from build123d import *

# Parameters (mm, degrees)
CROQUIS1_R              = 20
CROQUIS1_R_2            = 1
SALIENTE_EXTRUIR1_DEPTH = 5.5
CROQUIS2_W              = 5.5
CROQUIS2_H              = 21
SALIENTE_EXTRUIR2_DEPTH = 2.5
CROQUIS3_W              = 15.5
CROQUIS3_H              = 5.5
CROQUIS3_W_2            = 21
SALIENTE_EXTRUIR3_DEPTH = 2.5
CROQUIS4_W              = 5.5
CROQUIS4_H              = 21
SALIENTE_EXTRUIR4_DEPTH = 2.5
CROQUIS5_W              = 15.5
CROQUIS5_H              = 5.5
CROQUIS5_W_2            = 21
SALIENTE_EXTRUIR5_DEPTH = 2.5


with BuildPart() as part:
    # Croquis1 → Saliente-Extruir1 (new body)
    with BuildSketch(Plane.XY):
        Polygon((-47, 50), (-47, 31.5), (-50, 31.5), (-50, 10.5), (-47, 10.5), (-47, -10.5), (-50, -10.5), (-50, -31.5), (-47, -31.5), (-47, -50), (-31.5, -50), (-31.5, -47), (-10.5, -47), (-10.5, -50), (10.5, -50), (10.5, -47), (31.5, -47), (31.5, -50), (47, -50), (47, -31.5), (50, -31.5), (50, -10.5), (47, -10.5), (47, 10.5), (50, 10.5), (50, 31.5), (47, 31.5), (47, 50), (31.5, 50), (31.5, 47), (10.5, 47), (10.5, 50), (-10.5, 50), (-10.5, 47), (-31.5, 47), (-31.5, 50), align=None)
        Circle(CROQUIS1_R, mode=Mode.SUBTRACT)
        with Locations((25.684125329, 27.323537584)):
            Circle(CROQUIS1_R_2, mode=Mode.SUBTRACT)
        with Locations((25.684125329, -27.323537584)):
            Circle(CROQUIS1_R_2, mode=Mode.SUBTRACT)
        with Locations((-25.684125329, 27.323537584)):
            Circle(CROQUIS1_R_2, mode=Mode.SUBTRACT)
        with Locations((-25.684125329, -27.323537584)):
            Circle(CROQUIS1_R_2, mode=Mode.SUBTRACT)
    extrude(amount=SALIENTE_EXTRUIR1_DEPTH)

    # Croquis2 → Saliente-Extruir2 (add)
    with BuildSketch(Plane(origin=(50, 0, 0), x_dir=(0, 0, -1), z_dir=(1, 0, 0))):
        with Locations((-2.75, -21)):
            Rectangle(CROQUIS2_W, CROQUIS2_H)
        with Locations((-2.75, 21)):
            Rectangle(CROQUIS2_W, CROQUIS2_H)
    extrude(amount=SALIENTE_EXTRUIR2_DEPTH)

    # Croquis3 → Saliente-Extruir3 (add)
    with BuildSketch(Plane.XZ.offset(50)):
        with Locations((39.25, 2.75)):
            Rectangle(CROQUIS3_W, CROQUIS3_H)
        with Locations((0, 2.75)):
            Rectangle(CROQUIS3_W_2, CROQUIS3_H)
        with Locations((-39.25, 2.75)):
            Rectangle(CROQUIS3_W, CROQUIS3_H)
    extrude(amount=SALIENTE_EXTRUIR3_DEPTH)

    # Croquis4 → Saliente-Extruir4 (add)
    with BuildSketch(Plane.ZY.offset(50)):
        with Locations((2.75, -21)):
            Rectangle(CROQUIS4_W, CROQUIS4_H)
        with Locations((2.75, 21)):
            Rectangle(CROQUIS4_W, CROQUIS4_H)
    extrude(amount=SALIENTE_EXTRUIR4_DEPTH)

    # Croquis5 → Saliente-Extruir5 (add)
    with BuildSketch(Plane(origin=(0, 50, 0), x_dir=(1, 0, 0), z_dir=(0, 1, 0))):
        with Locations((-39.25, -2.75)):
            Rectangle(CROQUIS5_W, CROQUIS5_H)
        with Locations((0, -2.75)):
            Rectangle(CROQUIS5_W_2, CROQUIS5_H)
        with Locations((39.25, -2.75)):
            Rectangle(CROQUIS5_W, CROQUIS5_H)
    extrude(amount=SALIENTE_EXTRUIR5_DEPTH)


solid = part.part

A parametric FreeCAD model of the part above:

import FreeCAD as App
import Part
import Sketcher
from FreeCAD import Vector

doc = App.newDocument("Part")
body = doc.addObject("PartDesign::Body", "Body")

sketch1 = doc.addObject("Sketcher::SketchObject", "Sketch")
body.addObject(sketch1)
sketch1.AttachmentSupport = (doc.XY_Plane, [""])
sketch1.MapMode = "FlatFace"
sketch1.addGeometry(Part.LineSegment(Vector(-47, 50, 0), Vector(-47, 31.5, 0)), False)
sketch1.addGeometry(Part.LineSegment(Vector(-47, 31.5, 0), Vector(-50, 31.5, 0)), False)
sketch1.addGeometry(Part.LineSegment(Vector(-50, 31.5, 0), Vector(-50, 10.5, 0)), False)
sketch1.addGeometry(Part.LineSegment(Vector(-50, 10.5, 0), Vector(-47, 10.5, 0)), False)
sketch1.addGeometry(Part.LineSegment(Vector(-47, 10.5, 0), Vector(-47, -10.5, 0)), False)
sketch1.addGeometry(Part.LineSegment(Vector(-47, -10.5, 0), Vector(-50, -10.5, 0)), False)
sketch1.addGeometry(Part.LineSegment(Vector(-50, -10.5, 0), Vector(-50, -31.5, 0)), False)
sketch1.addGeometry(Part.LineSegment(Vector(-50, -31.5, 0), Vector(-47, -31.5, 0)), False)
sketch1.addGeometry(Part.LineSegment(Vector(-47, -31.5, 0), Vector(-47, -50, 0)), False)
sketch1.addGeometry(Part.LineSegment(Vector(-47, -50, 0), Vector(-31.5, -50, 0)), False)
sketch1.addGeometry(Part.LineSegment(Vector(-31.5, -50, 0), Vector(-31.5, -47, 0)), False)
sketch1.addGeometry(Part.LineSegment(Vector(-31.5, -47, 0), Vector(-10.5, -47, 0)), False)
sketch1.addGeometry(Part.LineSegment(Vector(-10.5, -47, 0), Vector(-10.5, -50, 0)), False)
sketch1.addGeometry(Part.LineSegment(Vector(-10.5, -50, 0), Vector(10.5, -50, 0)), False)
sketch1.addGeometry(Part.LineSegment(Vector(10.5, -50, 0), Vector(10.5, -47, 0)), False)
sketch1.addGeometry(Part.LineSegment(Vector(10.5, -47, 0), Vector(31.5, -47, 0)), False)
sketch1.addGeometry(Part.LineSegment(Vector(31.5, -47, 0), Vector(31.5, -50, 0)), False)
sketch1.addGeometry(Part.LineSegment(Vector(31.5, -50, 0), Vector(47, -50, 0)), False)
sketch1.addGeometry(Part.LineSegment(Vector(47, -50, 0), Vector(47, -31.5, 0)), False)
sketch1.addGeometry(Part.LineSegment(Vector(47, -31.5, 0), Vector(50, -31.5, 0)), False)
sketch1.addGeometry(Part.LineSegment(Vector(50, -31.5, 0), Vector(50, -10.5, 0)), False)
sketch1.addGeometry(Part.LineSegment(Vector(50, -10.5, 0), Vector(47, -10.5, 0)), False)
sketch1.addGeometry(Part.LineSegment(Vector(47, -10.5, 0), Vector(47, 10.5, 0)), False)
sketch1.addGeometry(Part.LineSegment(Vector(47, 10.5, 0), Vector(50, 10.5, 0)), False)
sketch1.addGeometry(Part.LineSegment(Vector(50, 10.5, 0), Vector(50, 31.5, 0)), False)
sketch1.addGeometry(Part.LineSegment(Vector(50, 31.5, 0), Vector(47, 31.5, 0)), False)
sketch1.addGeometry(Part.LineSegment(Vector(47, 31.5, 0), Vector(47, 50, 0)), False)
sketch1.addGeometry(Part.LineSegment(Vector(47, 50, 0), Vector(31.5, 50, 0)), False)
sketch1.addGeometry(Part.LineSegment(Vector(31.5, 50, 0), Vector(31.5, 47, 0)), False)
sketch1.addGeometry(Part.LineSegment(Vector(31.5, 47, 0), Vector(10.5, 47, 0)), False)
sketch1.addGeometry(Part.LineSegment(Vector(10.5, 47, 0), Vector(10.5, 50, 0)), False)
sketch1.addGeometry(Part.LineSegment(Vector(10.5, 50, 0), Vector(-10.5, 50, 0)), False)
sketch1.addGeometry(Part.LineSegment(Vector(-10.5, 50, 0), Vector(-10.5, 47, 0)), False)
sketch1.addGeometry(Part.LineSegment(Vector(-10.5, 47, 0), Vector(-31.5, 47, 0)), False)
sketch1.addGeometry(Part.LineSegment(Vector(-31.5, 47, 0), Vector(-31.5, 50, 0)), False)
sketch1.addGeometry(Part.LineSegment(Vector(-31.5, 50, 0), Vector(-47, 50, 0)), False)
sketch1.addGeometry(Part.Circle(Vector(-25.7, -27.3, 0), Vector(0, 0, 1), 1), False)
sketch1.addGeometry(Part.Circle(Vector(25.7, -27.3, 0), Vector(0, 0, 1), 1), False)
sketch1.addGeometry(Part.Circle(Vector(0, 0, 0), Vector(0, 0, 1), 20), False)
sketch1.addGeometry(Part.Circle(Vector(-25.7, 27.3, 0), Vector(0, 0, 1), 1), False)
sketch1.addGeometry(Part.Circle(Vector(25.7, 27.3, 0), Vector(0, 0, 1), 1), False)
sketch1.addConstraint(Sketcher.Constraint("Coincident", 0, 2, 1, 1))
sketch1.addConstraint(Sketcher.Constraint("Coincident", 1, 2, 2, 1))
sketch1.addConstraint(Sketcher.Constraint("Coincident", 2, 2, 3, 1))
sketch1.addConstraint(Sketcher.Constraint("Coincident", 3, 2, 4, 1))
sketch1.addConstraint(Sketcher.Constraint("Coincident", 4, 2, 5, 1))
sketch1.addConstraint(Sketcher.Constraint("Coincident", 5, 2, 6, 1))
sketch1.addConstraint(Sketcher.Constraint("Coincident", 6, 2, 7, 1))
sketch1.addConstraint(Sketcher.Constraint("Coincident", 7, 2, 8, 1))
sketch1.addConstraint(Sketcher.Constraint("Coincident", 8, 2, 9, 1))
sketch1.addConstraint(Sketcher.Constraint("Coincident", 9, 2, 10, 1))
sketch1.addConstraint(Sketcher.Constraint("Coincident", 10, 2, 11, 1))
sketch1.addConstraint(Sketcher.Constraint("Coincident", 11, 2, 12, 1))
sketch1.addConstraint(Sketcher.Constraint("Coincident", 12, 2, 13, 1))
sketch1.addConstraint(Sketcher.Constraint("Coincident", 13, 2, 14, 1))
sketch1.addConstraint(Sketcher.Constraint("Coincident", 14, 2, 15, 1))
sketch1.addConstraint(Sketcher.Constraint("Coincident", 15, 2, 16, 1))
sketch1.addConstraint(Sketcher.Constraint("Coincident", 16, 2, 17, 1))
sketch1.addConstraint(Sketcher.Constraint("Coincident", 17, 2, 18, 1))
sketch1.addConstraint(Sketcher.Constraint("Coincident", 18, 2, 19, 1))
sketch1.addConstraint(Sketcher.Constraint("Coincident", 19, 2, 20, 1))
sketch1.addConstraint(Sketcher.Constraint("Coincident", 20, 2, 21, 1))
sketch1.addConstraint(Sketcher.Constraint("Coincident", 21, 2, 22, 1))
sketch1.addConstraint(Sketcher.Constraint("Coincident", 22, 2, 23, 1))
sketch1.addConstraint(Sketcher.Constraint("Coincident", 23, 2, 24, 1))
sketch1.addConstraint(Sketcher.Constraint("Coincident", 24, 2, 25, 1))
sketch1.addConstraint(Sketcher.Constraint("Coincident", 25, 2, 26, 1))
sketch1.addConstraint(Sketcher.Constraint("Coincident", 26, 2, 27, 1))
sketch1.addConstraint(Sketcher.Constraint("Coincident", 27, 2, 28, 1))
sketch1.addConstraint(Sketcher.Constraint("Coincident", 28, 2, 29, 1))
sketch1.addConstraint(Sketcher.Constraint("Coincident", 29, 2, 30, 1))
sketch1.addConstraint(Sketcher.Constraint("Coincident", 30, 2, 31, 1))
sketch1.addConstraint(Sketcher.Constraint("Coincident", 31, 2, 32, 1))
sketch1.addConstraint(Sketcher.Constraint("Coincident", 32, 2, 33, 1))
sketch1.addConstraint(Sketcher.Constraint("Coincident", 33, 2, 34, 1))
sketch1.addConstraint(Sketcher.Constraint("Coincident", 34, 2, 35, 1))
sketch1.addConstraint(Sketcher.Constraint("Coincident", 35, 2, 0, 1))
sketch1.addConstraint(Sketcher.Constraint("Vertical", 0))
sketch1.addConstraint(Sketcher.Constraint("Horizontal", 1))
sketch1.addConstraint(Sketcher.Constraint("Vertical", 2))
sketch1.addConstraint(Sketcher.Constraint("Horizontal", 3))
sketch1.addConstraint(Sketcher.Constraint("Vertical", 4))
sketch1.addConstraint(Sketcher.Constraint("Horizontal", 5))
sketch1.addConstraint(Sketcher.Constraint("Vertical", 6))
sketch1.addConstraint(Sketcher.Constraint("Horizontal", 7))
sketch1.addConstraint(Sketcher.Constraint("Vertical", 8))
sketch1.addConstraint(Sketcher.Constraint("Horizontal", 9))
sketch1.addConstraint(Sketcher.Constraint("Vertical", 10))
sketch1.addConstraint(Sketcher.Constraint("Horizontal", 11))
sketch1.addConstraint(Sketcher.Constraint("Vertical", 12))
sketch1.addConstraint(Sketcher.Constraint("Horizontal", 13))
sketch1.addConstraint(Sketcher.Constraint("Vertical", 14))
sketch1.addConstraint(Sketcher.Constraint("Horizontal", 15))
sketch1.addConstraint(Sketcher.Constraint("Vertical", 16))
sketch1.addConstraint(Sketcher.Constraint("Horizontal", 17))
sketch1.addConstraint(Sketcher.Constraint("Vertical", 18))
sketch1.addConstraint(Sketcher.Constraint("Horizontal", 19))
sketch1.addConstraint(Sketcher.Constraint("Vertical", 20))
sketch1.addConstraint(Sketcher.Constraint("Horizontal", 21))
sketch1.addConstraint(Sketcher.Constraint("Vertical", 22))
sketch1.addConstraint(Sketcher.Constraint("Horizontal", 23))
sketch1.addConstraint(Sketcher.Constraint("Vertical", 24))
sketch1.addConstraint(Sketcher.Constraint("Horizontal", 25))
sketch1.addConstraint(Sketcher.Constraint("Vertical", 26))
sketch1.addConstraint(Sketcher.Constraint("Horizontal", 27))
sketch1.addConstraint(Sketcher.Constraint("Vertical", 28))
sketch1.addConstraint(Sketcher.Constraint("Horizontal", 29))
sketch1.addConstraint(Sketcher.Constraint("Vertical", 30))
sketch1.addConstraint(Sketcher.Constraint("Horizontal", 31))
sketch1.addConstraint(Sketcher.Constraint("Vertical", 32))
sketch1.addConstraint(Sketcher.Constraint("Horizontal", 33))
sketch1.addConstraint(Sketcher.Constraint("Vertical", 34))
sketch1.addConstraint(Sketcher.Constraint("Horizontal", 35))
sketch1.addConstraint(Sketcher.Constraint("Coincident", 38, 3, -1, 1))
sketch1.addConstraint(Sketcher.Constraint("Equal", 36, 37))
sketch1.addConstraint(Sketcher.Constraint("Equal", 37, 39))
sketch1.addConstraint(Sketcher.Constraint("Equal", 39, 40))
sketch1.addConstraint(Sketcher.Constraint("Symmetric", 37, 3, 39, 3, -1, 1))
sketch1.addConstraint(Sketcher.Constraint("Symmetric", 36, 3, 40, 3, -1, 1))
sketch1.addConstraint(Sketcher.Constraint("Symmetric", 0, 2, 18, 2, -1, 1))
sketch1.addConstraint(Sketcher.Constraint("Symmetric", 2, 2, 20, 2, -1, 1))
sketch1.addConstraint(Sketcher.Constraint("Symmetric", 4, 2, 22, 2, -1, 1))
sketch1.addConstraint(Sketcher.Constraint("Symmetric", 6, 2, 24, 2, -1, 1))
sketch1.addConstraint(Sketcher.Constraint("Symmetric", 8, 2, 26, 2, -1, 1))
sketch1.addConstraint(Sketcher.Constraint("Symmetric", 10, 2, 28, 2, -1, 1))
sketch1.addConstraint(Sketcher.Constraint("Symmetric", 12, 2, 30, 2, -1, 1))
sketch1.addConstraint(Sketcher.Constraint("Symmetric", 14, 2, 32, 2, -1, 1))
sketch1.addConstraint(Sketcher.Constraint("Symmetric", 16, 2, 34, 2, -1, 1))
sketch1.addConstraint(Sketcher.Constraint("Symmetric", 36, 3, 37, 3, -2))
sketch1.addConstraint(Sketcher.Constraint("Symmetric", 11, 2, 14, 2, -2))
sketch1.addConstraint(Sketcher.Constraint("Symmetric", 9, 2, 16, 2, -2))
sketch1.addConstraint(Sketcher.Constraint("Symmetric", 7, 2, 18, 2, -2))
sketch1.addConstraint(Sketcher.Constraint("Symmetric", 5, 2, 20, 2, -2))
sketch1.addConstraint(Sketcher.Constraint("Horizontal", 9, 2, 12, 2))
sketch1.addConstraint(Sketcher.Constraint("Vertical", 0, 2, 3, 2))
sketch1.addConstraint(Sketcher.Constraint("Equal", 11, 13))
sketch1.addConstraint(Sketcher.Constraint("Equal", 33, 2))
sketch1.addConstraint(Sketcher.Constraint("Equal", 2, 4))
sketch1.addConstraint(Sketcher.Constraint("Equal", 25, 10))
sketch1.addConstraint(Sketcher.Constraint("Diameter", 36, 2.0))
sketch1.addConstraint(Sketcher.Constraint("Diameter", 38, 40.0))
sketch1.addConstraint(Sketcher.Constraint("DistanceX", 1, 2, 1, 1, 3.0))
sketch1.addConstraint(Sketcher.Constraint("DistanceX", 11, 1, 11, 2, 21.0))
sketch1.addConstraint(Sketcher.Constraint("DistanceX", 9, 1, 9, 2, 15.5))
sketch1.addConstraint(Sketcher.Constraint("DistanceY", 0, 2, 0, 1, 18.5))
sketch1.addConstraint(Sketcher.Constraint("DistanceX", 36, 3, 37, 3, 51.368251))
sketch1.addConstraint(Sketcher.Constraint("DistanceY", 36, 3, -1, 1, 27.323538))
pad1 = doc.addObject("PartDesign::Pad", "Pad")
body.addObject(pad1)
pad1.Profile = sketch1
pad1.Length = 5.5

sketch2 = doc.addObject("Sketcher::SketchObject", "Sketch001")
body.addObject(sketch2)
sketch2.AttachmentSupport = (doc.YZ_Plane, [""])
sketch2.MapMode = "FlatFace"
sketch2.AttachmentOffset = App.Placement(Vector(0, 0, 50), App.Rotation())
sketch2.addGeometry(Part.LineSegment(Vector(-10, 6, 0), Vector(-32, 6, 0)), False)
sketch2.addGeometry(Part.LineSegment(Vector(-32, 6, 0), Vector(-32, 0, 0)), False)
sketch2.addGeometry(Part.LineSegment(Vector(-32, 0, 0), Vector(-10, 0, 0)), False)
sketch2.addGeometry(Part.LineSegment(Vector(-10, 0, 0), Vector(-10, 6, 0)), False)
sketch2.addGeometry(Part.LineSegment(Vector(32, 6, 0), Vector(10, 6, 0)), False)
sketch2.addGeometry(Part.LineSegment(Vector(10, 6, 0), Vector(10, 0, 0)), False)
sketch2.addGeometry(Part.LineSegment(Vector(10, 0, 0), Vector(32, 0, 0)), False)
sketch2.addGeometry(Part.LineSegment(Vector(32, 0, 0), Vector(32, 6, 0)), False)
sketch2.addConstraint(Sketcher.Constraint("Coincident", 0, 2, 1, 1))
sketch2.addConstraint(Sketcher.Constraint("Coincident", 1, 2, 2, 1))
sketch2.addConstraint(Sketcher.Constraint("Coincident", 2, 2, 3, 1))
sketch2.addConstraint(Sketcher.Constraint("Coincident", 3, 2, 0, 1))
sketch2.addConstraint(Sketcher.Constraint("Coincident", 4, 2, 5, 1))
sketch2.addConstraint(Sketcher.Constraint("Coincident", 5, 2, 6, 1))
sketch2.addConstraint(Sketcher.Constraint("Coincident", 6, 2, 7, 1))
sketch2.addConstraint(Sketcher.Constraint("Coincident", 7, 2, 4, 1))
sketch2.addConstraint(Sketcher.Constraint("Horizontal", 0))
sketch2.addConstraint(Sketcher.Constraint("Vertical", 1))
sketch2.addConstraint(Sketcher.Constraint("Horizontal", 2))
sketch2.addConstraint(Sketcher.Constraint("Vertical", 3))
sketch2.addConstraint(Sketcher.Constraint("Horizontal", 4))
sketch2.addConstraint(Sketcher.Constraint("Vertical", 5))
sketch2.addConstraint(Sketcher.Constraint("Horizontal", 6))
sketch2.addConstraint(Sketcher.Constraint("Vertical", 7))
sketch2.addConstraint(Sketcher.Constraint("Symmetric", 2, 2, 5, 2, -1, 1))
sketch2.addConstraint(Sketcher.Constraint("Symmetric", 1, 2, 6, 2, -2))
sketch2.addConstraint(Sketcher.Constraint("Horizontal", 3, 2, 4, 2))
sketch2.addConstraint(Sketcher.Constraint("DistanceX", 0, 2, 0, 1, 21.0))
sketch2.addConstraint(Sketcher.Constraint("DistanceY", 1, 2, 1, 1, 5.5))
sketch2.addConstraint(Sketcher.Constraint("DistanceX", 3, 2, 4, 2, 21.0))
pad2 = doc.addObject("PartDesign::Pad", "Pad001")
body.addObject(pad2)
pad2.Profile = sketch2
pad2.Length = 2.5

sketch3 = doc.addObject("Sketcher::SketchObject", "Sketch002")
body.addObject(sketch3)
sketch3.AttachmentSupport = (doc.XZ_Plane, [""])
sketch3.MapMode = "FlatFace"
sketch3.AttachmentOffset = App.Placement(Vector(0, 0, 50), App.Rotation())
sketch3.addGeometry(Part.LineSegment(Vector(32, 6, 0), Vector(32, 0, 0)), False)
sketch3.addGeometry(Part.LineSegment(Vector(32, 0, 0), Vector(47, 0, 0)), False)
sketch3.addGeometry(Part.LineSegment(Vector(47, 0, 0), Vector(47, 6, 0)), False)
sketch3.addGeometry(Part.LineSegment(Vector(47, 6, 0), Vector(32, 6, 0)), False)
sketch3.addGeometry(Part.LineSegment(Vector(-10, 6, 0), Vector(-10, 0, 0)), False)
sketch3.addGeometry(Part.LineSegment(Vector(-10, 0, 0), Vector(10, 0, 0)), False)
sketch3.addGeometry(Part.LineSegment(Vector(10, 0, 0), Vector(10, 6, 0)), False)
sketch3.addGeometry(Part.LineSegment(Vector(10, 6, 0), Vector(-10, 6, 0)), False)
sketch3.addGeometry(Part.LineSegment(Vector(-47, 6, 0), Vector(-47, 0, 0)), False)
sketch3.addGeometry(Part.LineSegment(Vector(-47, 0, 0), Vector(-32, 0, 0)), False)
sketch3.addGeometry(Part.LineSegment(Vector(-32, 0, 0), Vector(-32, 6, 0)), False)
sketch3.addGeometry(Part.LineSegment(Vector(-32, 6, 0), Vector(-47, 6, 0)), False)
sketch3.addConstraint(Sketcher.Constraint("Coincident", 0, 2, 1, 1))
sketch3.addConstraint(Sketcher.Constraint("Coincident", 1, 2, 2, 1))
sketch3.addConstraint(Sketcher.Constraint("Coincident", 2, 2, 3, 1))
sketch3.addConstraint(Sketcher.Constraint("Coincident", 3, 2, 0, 1))
sketch3.addConstraint(Sketcher.Constraint("Coincident", 4, 2, 5, 1))
sketch3.addConstraint(Sketcher.Constraint("Coincident", 5, 2, 6, 1))
sketch3.addConstraint(Sketcher.Constraint("Coincident", 6, 2, 7, 1))
sketch3.addConstraint(Sketcher.Constraint("Coincident", 7, 2, 4, 1))
sketch3.addConstraint(Sketcher.Constraint("Coincident", 8, 2, 9, 1))
sketch3.addConstraint(Sketcher.Constraint("Coincident", 9, 2, 10, 1))
sketch3.addConstraint(Sketcher.Constraint("Coincident", 10, 2, 11, 1))
sketch3.addConstraint(Sketcher.Constraint("Coincident", 11, 2, 8, 1))
sketch3.addConstraint(Sketcher.Constraint("Vertical", 0))
sketch3.addConstraint(Sketcher.Constraint("Horizontal", 1))
sketch3.addConstraint(Sketcher.Constraint("Vertical", 2))
sketch3.addConstraint(Sketcher.Constraint("Horizontal", 3))
sketch3.addConstraint(Sketcher.Constraint("Vertical", 4))
sketch3.addConstraint(Sketcher.Constraint("Horizontal", 5))
sketch3.addConstraint(Sketcher.Constraint("Vertical", 6))
sketch3.addConstraint(Sketcher.Constraint("Horizontal", 7))
sketch3.addConstraint(Sketcher.Constraint("Vertical", 8))
sketch3.addConstraint(Sketcher.Constraint("Horizontal", 9))
sketch3.addConstraint(Sketcher.Constraint("Vertical", 10))
sketch3.addConstraint(Sketcher.Constraint("Horizontal", 11))
sketch3.addConstraint(Sketcher.Constraint("Symmetric", 4, 2, 5, 2, -1, 1))
sketch3.addConstraint(Sketcher.Constraint("Symmetric", 1, 2, 8, 2, -1, 1))
sketch3.addConstraint(Sketcher.Constraint("Symmetric", 0, 2, 9, 2, -2))
sketch3.addConstraint(Sketcher.Constraint("Horizontal", 3, 2, 6, 2))
sketch3.addConstraint(Sketcher.Constraint("Horizontal", 7, 2, 10, 2))
sketch3.addConstraint(Sketcher.Constraint("DistanceX", 5, 1, 5, 2, 21.0))
sketch3.addConstraint(Sketcher.Constraint("DistanceX", 1, 1, 1, 2, 15.5))
sketch3.addConstraint(Sketcher.Constraint("DistanceY", 0, 2, 0, 1, 5.5))
sketch3.addConstraint(Sketcher.Constraint("DistanceX", -1, 1, 1, 2, 47.0))
pad3 = doc.addObject("PartDesign::Pad", "Pad002")
body.addObject(pad3)
pad3.Profile = sketch3
pad3.Length = 2.5

sketch4 = doc.addObject("Sketcher::SketchObject", "Sketch003")
body.addObject(sketch4)
sketch4.AttachmentSupport = (doc.YZ_Plane, [""])
sketch4.MapMode = "FlatFace"
sketch4.AttachmentOffset = App.Placement(Vector(0, 0, -50), App.Rotation())
sketch4.addGeometry(Part.LineSegment(Vector(-10, 0, 0), Vector(-32, 0, 0)), False)
sketch4.addGeometry(Part.LineSegment(Vector(-32, 0, 0), Vector(-32, 6, 0)), False)
sketch4.addGeometry(Part.LineSegment(Vector(-32, 6, 0), Vector(-10, 6, 0)), False)
sketch4.addGeometry(Part.LineSegment(Vector(-10, 6, 0), Vector(-10, 0, 0)), False)
sketch4.addGeometry(Part.LineSegment(Vector(32, 0, 0), Vector(10, 0, 0)), False)
sketch4.addGeometry(Part.LineSegment(Vector(10, 0, 0), Vector(10, 6, 0)), False)
sketch4.addGeometry(Part.LineSegment(Vector(10, 6, 0), Vector(32, 6, 0)), False)
sketch4.addGeometry(Part.LineSegment(Vector(32, 6, 0), Vector(32, 0, 0)), False)
sketch4.addConstraint(Sketcher.Constraint("Coincident", 0, 2, 1, 1))
sketch4.addConstraint(Sketcher.Constraint("Coincident", 1, 2, 2, 1))
sketch4.addConstraint(Sketcher.Constraint("Coincident", 2, 2, 3, 1))
sketch4.addConstraint(Sketcher.Constraint("Coincident", 3, 2, 0, 1))
sketch4.addConstraint(Sketcher.Constraint("Coincident", 4, 2, 5, 1))
sketch4.addConstraint(Sketcher.Constraint("Coincident", 5, 2, 6, 1))
sketch4.addConstraint(Sketcher.Constraint("Coincident", 6, 2, 7, 1))
sketch4.addConstraint(Sketcher.Constraint("Coincident", 7, 2, 4, 1))
sketch4.addConstraint(Sketcher.Constraint("Horizontal", 0))
sketch4.addConstraint(Sketcher.Constraint("Vertical", 1))
sketch4.addConstraint(Sketcher.Constraint("Horizontal", 2))
sketch4.addConstraint(Sketcher.Constraint("Vertical", 3))
sketch4.addConstraint(Sketcher.Constraint("Horizontal", 4))
sketch4.addConstraint(Sketcher.Constraint("Vertical", 5))
sketch4.addConstraint(Sketcher.Constraint("Horizontal", 6))
sketch4.addConstraint(Sketcher.Constraint("Vertical", 7))
sketch4.addConstraint(Sketcher.Constraint("Symmetric", 3, 2, 4, 2, -1, 1))
sketch4.addConstraint(Sketcher.Constraint("Symmetric", 1, 2, 6, 2, -2))
sketch4.addConstraint(Sketcher.Constraint("PointOnObject", 0, 2, -1))
sketch4.addConstraint(Sketcher.Constraint("DistanceX", 0, 2, 0, 1, 21.0))
sketch4.addConstraint(Sketcher.Constraint("DistanceY", 1, 1, 1, 2, 5.5))
sketch4.addConstraint(Sketcher.Constraint("DistanceX", 3, 2, 4, 2, 21.0))
pad4 = doc.addObject("PartDesign::Pad", "Pad003")
body.addObject(pad4)
pad4.Profile = sketch4
pad4.Length = 2.5
pad4.Reversed = True

sketch5 = doc.addObject("Sketcher::SketchObject", "Sketch004")
body.addObject(sketch5)
sketch5.AttachmentSupport = (doc.XZ_Plane, [""])
sketch5.MapMode = "FlatFace"
sketch5.AttachmentOffset = App.Placement(Vector(0, 0, -50), App.Rotation())
sketch5.addGeometry(Part.LineSegment(Vector(-47, 0, 0), Vector(-47, 6, 0)), False)
sketch5.addGeometry(Part.LineSegment(Vector(-47, 6, 0), Vector(-32, 6, 0)), False)
sketch5.addGeometry(Part.LineSegment(Vector(-32, 6, 0), Vector(-32, 0, 0)), False)
sketch5.addGeometry(Part.LineSegment(Vector(-32, 0, 0), Vector(-47, 0, 0)), False)
sketch5.addGeometry(Part.LineSegment(Vector(-10, 0, 0), Vector(-10, 6, 0)), False)
sketch5.addGeometry(Part.LineSegment(Vector(-10, 6, 0), Vector(10, 6, 0)), False)
sketch5.addGeometry(Part.LineSegment(Vector(10, 6, 0), Vector(10, 0, 0)), False)
sketch5.addGeometry(Part.LineSegment(Vector(10, 0, 0), Vector(-10, 0, 0)), False)
sketch5.addGeometry(Part.LineSegment(Vector(32, 0, 0), Vector(32, 6, 0)), False)
sketch5.addGeometry(Part.LineSegment(Vector(32, 6, 0), Vector(47, 6, 0)), False)
sketch5.addGeometry(Part.LineSegment(Vector(47, 6, 0), Vector(47, 0, 0)), False)
sketch5.addGeometry(Part.LineSegment(Vector(47, 0, 0), Vector(32, 0, 0)), False)
sketch5.addConstraint(Sketcher.Constraint("Coincident", 0, 2, 1, 1))
sketch5.addConstraint(Sketcher.Constraint("Coincident", 1, 2, 2, 1))
sketch5.addConstraint(Sketcher.Constraint("Coincident", 2, 2, 3, 1))
sketch5.addConstraint(Sketcher.Constraint("Coincident", 3, 2, 0, 1))
sketch5.addConstraint(Sketcher.Constraint("Coincident", 4, 2, 5, 1))
sketch5.addConstraint(Sketcher.Constraint("Coincident", 5, 2, 6, 1))
sketch5.addConstraint(Sketcher.Constraint("Coincident", 6, 2, 7, 1))
sketch5.addConstraint(Sketcher.Constraint("Coincident", 7, 2, 4, 1))
sketch5.addConstraint(Sketcher.Constraint("Coincident", 8, 2, 9, 1))
sketch5.addConstraint(Sketcher.Constraint("Coincident", 9, 2, 10, 1))
sketch5.addConstraint(Sketcher.Constraint("Coincident", 10, 2, 11, 1))
sketch5.addConstraint(Sketcher.Constraint("Coincident", 11, 2, 8, 1))
sketch5.addConstraint(Sketcher.Constraint("Vertical", 0))
sketch5.addConstraint(Sketcher.Constraint("Horizontal", 1))
sketch5.addConstraint(Sketcher.Constraint("Vertical", 2))
sketch5.addConstraint(Sketcher.Constraint("Horizontal", 3))
sketch5.addConstraint(Sketcher.Constraint("Vertical", 4))
sketch5.addConstraint(Sketcher.Constraint("Horizontal", 5))
sketch5.addConstraint(Sketcher.Constraint("Vertical", 6))
sketch5.addConstraint(Sketcher.Constraint("Horizontal", 7))
sketch5.addConstraint(Sketcher.Constraint("Vertical", 8))
sketch5.addConstraint(Sketcher.Constraint("Horizontal", 9))
sketch5.addConstraint(Sketcher.Constraint("Vertical", 10))
sketch5.addConstraint(Sketcher.Constraint("Horizontal", 11))
sketch5.addConstraint(Sketcher.Constraint("Symmetric", 6, 2, 7, 2, -1, 1))
sketch5.addConstraint(Sketcher.Constraint("Symmetric", 3, 2, 10, 2, -1, 1))
sketch5.addConstraint(Sketcher.Constraint("Symmetric", 1, 2, 8, 2, -2))
sketch5.addConstraint(Sketcher.Constraint("PointOnObject", 2, 2, -1))
sketch5.addConstraint(Sketcher.Constraint("Horizontal", 1, 2, 4, 2))
sketch5.addConstraint(Sketcher.Constraint("DistanceX", 5, 1, 5, 2, 21.0))
sketch5.addConstraint(Sketcher.Constraint("DistanceX", 1, 1, 1, 2, 15.5))
sketch5.addConstraint(Sketcher.Constraint("DistanceY", 0, 1, 0, 2, 5.5))
sketch5.addConstraint(Sketcher.Constraint("DistanceX", 0, 2, -1, 1, 47.0))
pad5 = doc.addObject("PartDesign::Pad", "Pad004")
body.addObject(pad5)
pad5.Profile = sketch5
pad5.Length = 2.5
pad5.Reversed = True

doc.recompute()
